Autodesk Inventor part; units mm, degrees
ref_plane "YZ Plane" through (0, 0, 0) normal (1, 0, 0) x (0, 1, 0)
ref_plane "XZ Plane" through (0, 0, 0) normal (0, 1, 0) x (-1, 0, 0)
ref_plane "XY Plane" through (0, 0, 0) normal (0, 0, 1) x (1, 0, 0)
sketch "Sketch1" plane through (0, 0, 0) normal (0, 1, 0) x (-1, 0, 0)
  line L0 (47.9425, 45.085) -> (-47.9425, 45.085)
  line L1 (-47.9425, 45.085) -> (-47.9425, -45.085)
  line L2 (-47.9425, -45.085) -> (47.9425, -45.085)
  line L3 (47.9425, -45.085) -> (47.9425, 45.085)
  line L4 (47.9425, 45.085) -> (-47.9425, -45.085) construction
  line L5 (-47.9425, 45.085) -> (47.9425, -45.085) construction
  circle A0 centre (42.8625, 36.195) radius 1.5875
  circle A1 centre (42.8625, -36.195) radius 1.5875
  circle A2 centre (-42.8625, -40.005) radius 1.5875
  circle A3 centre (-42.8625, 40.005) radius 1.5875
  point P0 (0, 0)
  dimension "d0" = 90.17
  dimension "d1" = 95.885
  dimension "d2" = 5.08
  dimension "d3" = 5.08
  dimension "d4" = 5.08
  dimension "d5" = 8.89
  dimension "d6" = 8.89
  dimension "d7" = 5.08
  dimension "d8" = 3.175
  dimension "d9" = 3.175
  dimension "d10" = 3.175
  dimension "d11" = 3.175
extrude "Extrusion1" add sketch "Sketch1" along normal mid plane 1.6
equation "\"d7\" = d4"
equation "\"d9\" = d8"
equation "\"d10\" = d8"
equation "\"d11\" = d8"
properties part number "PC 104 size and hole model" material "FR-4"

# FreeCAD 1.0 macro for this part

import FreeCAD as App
import Part
import Sketcher
from FreeCAD import Vector
Q = App.Units.Quantity

doc = App.newDocument("Part")
body = doc.addObject("PartDesign::Body", "Body")

# Sketch on XZ plane
sketch1 = doc.addObject("Sketcher::SketchObject", "Sketch")
body.addObject(sketch1)
sketch1.AttachmentSupport = (doc.XZ_Plane, [""])
sketch1.MapMode = "FlatFace"
sketch1.addGeometry(Part.LineSegment(Vector(-47.9, -45.1, 0), Vector(-47.9, 45.1, 0)), False)
sketch1.addGeometry(Part.LineSegment(Vector(-47.9, 45.1, 0), Vector(47.9, 45.1, 0)), False)
sketch1.addGeometry(Part.LineSegment(Vector(47.9, 45.1, 0), Vector(47.9, -45.1, 0)), False)
sketch1.addGeometry(Part.LineSegment(Vector(47.9, -45.1, 0), Vector(-47.9, -45.1, 0)), False)
sketch1.addGeometry(Part.Circle(Vector(42.9, -40, 0), Vector(0, 0, 1), 1.6), False)
sketch1.addGeometry(Part.Circle(Vector(-42.9, -36.2, 0), Vector(0, 0, 1), 1.6), False)
sketch1.addGeometry(Part.Circle(Vector(42.9, 40, 0), Vector(0, 0, 1), 1.6), False)
sketch1.addGeometry(Part.Circle(Vector(-42.9, 36.2, 0), Vector(0, 0, 1), 1.6), False)
sketch1.addConstraint(Sketcher.Constraint("Coincident", 0, 2, 1, 1))
sketch1.addConstraint(Sketcher.Constraint("Coincident", 1, 2, 2, 1))
sketch1.addConstraint(Sketcher.Constraint("Coincident", 2, 2, 3, 1))
sketch1.addConstraint(Sketcher.Constraint("Coincident", 3, 2, 0, 1))
sketch1.addConstraint(Sketcher.Constraint("Vertical", 0))
sketch1.addConstraint(Sketcher.Constraint("Horizontal", 1))
sketch1.addConstraint(Sketcher.Constraint("Vertical", 2))
sketch1.addConstraint(Sketcher.Constraint("Horizontal", 3))
sketch1.addConstraint(Sketcher.Constraint("Equal", 4, 5))
sketch1.addConstraint(Sketcher.Constraint("Equal", 5, 6))
sketch1.addConstraint(Sketcher.Constraint("Equal", 6, 7))
sketch1.addConstraint(Sketcher.Constraint("Symmetric", 0, 2, 2, 2, -1, 1))
sketch1.addConstraint(Sketcher.Constraint("Symmetric", 4, 3, 6, 3, -1))
sketch1.addConstraint(Sketcher.Constraint("Symmetric", 5, 3, 7, 3, -1))
sketch1.addConstraint(Sketcher.Constraint("Diameter", 4, Q("0.125 in")))
sketch1.addConstraint(Sketcher.Constraint("DistanceY", 0, 1, 0, 2, Q("3.55 in")))
sketch1.addConstraint(Sketcher.Constraint("DistanceX", 0, 2, 7, 3, Q("0.2 in")))
sketch1.addConstraint(Sketcher.Constraint("DistanceY", 6, 3, 0, 2, Q("0.2 in")))
sketch1.addConstraint(Sketcher.Constraint("DistanceX", 6, 3, 1, 2, Q("0.2 in")))
sketch1.addConstraint(Sketcher.Constraint("DistanceX", 1, 1, 1, 2, Q("3.775 in")))
sketch1.addConstraint(Sketcher.Constraint("DistanceY", 7, 3, 0, 2, Q("0.35 in")))
pad1 = doc.addObject("PartDesign::Pad", "Pad")
body.addObject(pad1)
pad1.Profile = sketch1
pad1.Length = Q("0.0629921 in")
pad1.Midplane = True

doc.recompute()
